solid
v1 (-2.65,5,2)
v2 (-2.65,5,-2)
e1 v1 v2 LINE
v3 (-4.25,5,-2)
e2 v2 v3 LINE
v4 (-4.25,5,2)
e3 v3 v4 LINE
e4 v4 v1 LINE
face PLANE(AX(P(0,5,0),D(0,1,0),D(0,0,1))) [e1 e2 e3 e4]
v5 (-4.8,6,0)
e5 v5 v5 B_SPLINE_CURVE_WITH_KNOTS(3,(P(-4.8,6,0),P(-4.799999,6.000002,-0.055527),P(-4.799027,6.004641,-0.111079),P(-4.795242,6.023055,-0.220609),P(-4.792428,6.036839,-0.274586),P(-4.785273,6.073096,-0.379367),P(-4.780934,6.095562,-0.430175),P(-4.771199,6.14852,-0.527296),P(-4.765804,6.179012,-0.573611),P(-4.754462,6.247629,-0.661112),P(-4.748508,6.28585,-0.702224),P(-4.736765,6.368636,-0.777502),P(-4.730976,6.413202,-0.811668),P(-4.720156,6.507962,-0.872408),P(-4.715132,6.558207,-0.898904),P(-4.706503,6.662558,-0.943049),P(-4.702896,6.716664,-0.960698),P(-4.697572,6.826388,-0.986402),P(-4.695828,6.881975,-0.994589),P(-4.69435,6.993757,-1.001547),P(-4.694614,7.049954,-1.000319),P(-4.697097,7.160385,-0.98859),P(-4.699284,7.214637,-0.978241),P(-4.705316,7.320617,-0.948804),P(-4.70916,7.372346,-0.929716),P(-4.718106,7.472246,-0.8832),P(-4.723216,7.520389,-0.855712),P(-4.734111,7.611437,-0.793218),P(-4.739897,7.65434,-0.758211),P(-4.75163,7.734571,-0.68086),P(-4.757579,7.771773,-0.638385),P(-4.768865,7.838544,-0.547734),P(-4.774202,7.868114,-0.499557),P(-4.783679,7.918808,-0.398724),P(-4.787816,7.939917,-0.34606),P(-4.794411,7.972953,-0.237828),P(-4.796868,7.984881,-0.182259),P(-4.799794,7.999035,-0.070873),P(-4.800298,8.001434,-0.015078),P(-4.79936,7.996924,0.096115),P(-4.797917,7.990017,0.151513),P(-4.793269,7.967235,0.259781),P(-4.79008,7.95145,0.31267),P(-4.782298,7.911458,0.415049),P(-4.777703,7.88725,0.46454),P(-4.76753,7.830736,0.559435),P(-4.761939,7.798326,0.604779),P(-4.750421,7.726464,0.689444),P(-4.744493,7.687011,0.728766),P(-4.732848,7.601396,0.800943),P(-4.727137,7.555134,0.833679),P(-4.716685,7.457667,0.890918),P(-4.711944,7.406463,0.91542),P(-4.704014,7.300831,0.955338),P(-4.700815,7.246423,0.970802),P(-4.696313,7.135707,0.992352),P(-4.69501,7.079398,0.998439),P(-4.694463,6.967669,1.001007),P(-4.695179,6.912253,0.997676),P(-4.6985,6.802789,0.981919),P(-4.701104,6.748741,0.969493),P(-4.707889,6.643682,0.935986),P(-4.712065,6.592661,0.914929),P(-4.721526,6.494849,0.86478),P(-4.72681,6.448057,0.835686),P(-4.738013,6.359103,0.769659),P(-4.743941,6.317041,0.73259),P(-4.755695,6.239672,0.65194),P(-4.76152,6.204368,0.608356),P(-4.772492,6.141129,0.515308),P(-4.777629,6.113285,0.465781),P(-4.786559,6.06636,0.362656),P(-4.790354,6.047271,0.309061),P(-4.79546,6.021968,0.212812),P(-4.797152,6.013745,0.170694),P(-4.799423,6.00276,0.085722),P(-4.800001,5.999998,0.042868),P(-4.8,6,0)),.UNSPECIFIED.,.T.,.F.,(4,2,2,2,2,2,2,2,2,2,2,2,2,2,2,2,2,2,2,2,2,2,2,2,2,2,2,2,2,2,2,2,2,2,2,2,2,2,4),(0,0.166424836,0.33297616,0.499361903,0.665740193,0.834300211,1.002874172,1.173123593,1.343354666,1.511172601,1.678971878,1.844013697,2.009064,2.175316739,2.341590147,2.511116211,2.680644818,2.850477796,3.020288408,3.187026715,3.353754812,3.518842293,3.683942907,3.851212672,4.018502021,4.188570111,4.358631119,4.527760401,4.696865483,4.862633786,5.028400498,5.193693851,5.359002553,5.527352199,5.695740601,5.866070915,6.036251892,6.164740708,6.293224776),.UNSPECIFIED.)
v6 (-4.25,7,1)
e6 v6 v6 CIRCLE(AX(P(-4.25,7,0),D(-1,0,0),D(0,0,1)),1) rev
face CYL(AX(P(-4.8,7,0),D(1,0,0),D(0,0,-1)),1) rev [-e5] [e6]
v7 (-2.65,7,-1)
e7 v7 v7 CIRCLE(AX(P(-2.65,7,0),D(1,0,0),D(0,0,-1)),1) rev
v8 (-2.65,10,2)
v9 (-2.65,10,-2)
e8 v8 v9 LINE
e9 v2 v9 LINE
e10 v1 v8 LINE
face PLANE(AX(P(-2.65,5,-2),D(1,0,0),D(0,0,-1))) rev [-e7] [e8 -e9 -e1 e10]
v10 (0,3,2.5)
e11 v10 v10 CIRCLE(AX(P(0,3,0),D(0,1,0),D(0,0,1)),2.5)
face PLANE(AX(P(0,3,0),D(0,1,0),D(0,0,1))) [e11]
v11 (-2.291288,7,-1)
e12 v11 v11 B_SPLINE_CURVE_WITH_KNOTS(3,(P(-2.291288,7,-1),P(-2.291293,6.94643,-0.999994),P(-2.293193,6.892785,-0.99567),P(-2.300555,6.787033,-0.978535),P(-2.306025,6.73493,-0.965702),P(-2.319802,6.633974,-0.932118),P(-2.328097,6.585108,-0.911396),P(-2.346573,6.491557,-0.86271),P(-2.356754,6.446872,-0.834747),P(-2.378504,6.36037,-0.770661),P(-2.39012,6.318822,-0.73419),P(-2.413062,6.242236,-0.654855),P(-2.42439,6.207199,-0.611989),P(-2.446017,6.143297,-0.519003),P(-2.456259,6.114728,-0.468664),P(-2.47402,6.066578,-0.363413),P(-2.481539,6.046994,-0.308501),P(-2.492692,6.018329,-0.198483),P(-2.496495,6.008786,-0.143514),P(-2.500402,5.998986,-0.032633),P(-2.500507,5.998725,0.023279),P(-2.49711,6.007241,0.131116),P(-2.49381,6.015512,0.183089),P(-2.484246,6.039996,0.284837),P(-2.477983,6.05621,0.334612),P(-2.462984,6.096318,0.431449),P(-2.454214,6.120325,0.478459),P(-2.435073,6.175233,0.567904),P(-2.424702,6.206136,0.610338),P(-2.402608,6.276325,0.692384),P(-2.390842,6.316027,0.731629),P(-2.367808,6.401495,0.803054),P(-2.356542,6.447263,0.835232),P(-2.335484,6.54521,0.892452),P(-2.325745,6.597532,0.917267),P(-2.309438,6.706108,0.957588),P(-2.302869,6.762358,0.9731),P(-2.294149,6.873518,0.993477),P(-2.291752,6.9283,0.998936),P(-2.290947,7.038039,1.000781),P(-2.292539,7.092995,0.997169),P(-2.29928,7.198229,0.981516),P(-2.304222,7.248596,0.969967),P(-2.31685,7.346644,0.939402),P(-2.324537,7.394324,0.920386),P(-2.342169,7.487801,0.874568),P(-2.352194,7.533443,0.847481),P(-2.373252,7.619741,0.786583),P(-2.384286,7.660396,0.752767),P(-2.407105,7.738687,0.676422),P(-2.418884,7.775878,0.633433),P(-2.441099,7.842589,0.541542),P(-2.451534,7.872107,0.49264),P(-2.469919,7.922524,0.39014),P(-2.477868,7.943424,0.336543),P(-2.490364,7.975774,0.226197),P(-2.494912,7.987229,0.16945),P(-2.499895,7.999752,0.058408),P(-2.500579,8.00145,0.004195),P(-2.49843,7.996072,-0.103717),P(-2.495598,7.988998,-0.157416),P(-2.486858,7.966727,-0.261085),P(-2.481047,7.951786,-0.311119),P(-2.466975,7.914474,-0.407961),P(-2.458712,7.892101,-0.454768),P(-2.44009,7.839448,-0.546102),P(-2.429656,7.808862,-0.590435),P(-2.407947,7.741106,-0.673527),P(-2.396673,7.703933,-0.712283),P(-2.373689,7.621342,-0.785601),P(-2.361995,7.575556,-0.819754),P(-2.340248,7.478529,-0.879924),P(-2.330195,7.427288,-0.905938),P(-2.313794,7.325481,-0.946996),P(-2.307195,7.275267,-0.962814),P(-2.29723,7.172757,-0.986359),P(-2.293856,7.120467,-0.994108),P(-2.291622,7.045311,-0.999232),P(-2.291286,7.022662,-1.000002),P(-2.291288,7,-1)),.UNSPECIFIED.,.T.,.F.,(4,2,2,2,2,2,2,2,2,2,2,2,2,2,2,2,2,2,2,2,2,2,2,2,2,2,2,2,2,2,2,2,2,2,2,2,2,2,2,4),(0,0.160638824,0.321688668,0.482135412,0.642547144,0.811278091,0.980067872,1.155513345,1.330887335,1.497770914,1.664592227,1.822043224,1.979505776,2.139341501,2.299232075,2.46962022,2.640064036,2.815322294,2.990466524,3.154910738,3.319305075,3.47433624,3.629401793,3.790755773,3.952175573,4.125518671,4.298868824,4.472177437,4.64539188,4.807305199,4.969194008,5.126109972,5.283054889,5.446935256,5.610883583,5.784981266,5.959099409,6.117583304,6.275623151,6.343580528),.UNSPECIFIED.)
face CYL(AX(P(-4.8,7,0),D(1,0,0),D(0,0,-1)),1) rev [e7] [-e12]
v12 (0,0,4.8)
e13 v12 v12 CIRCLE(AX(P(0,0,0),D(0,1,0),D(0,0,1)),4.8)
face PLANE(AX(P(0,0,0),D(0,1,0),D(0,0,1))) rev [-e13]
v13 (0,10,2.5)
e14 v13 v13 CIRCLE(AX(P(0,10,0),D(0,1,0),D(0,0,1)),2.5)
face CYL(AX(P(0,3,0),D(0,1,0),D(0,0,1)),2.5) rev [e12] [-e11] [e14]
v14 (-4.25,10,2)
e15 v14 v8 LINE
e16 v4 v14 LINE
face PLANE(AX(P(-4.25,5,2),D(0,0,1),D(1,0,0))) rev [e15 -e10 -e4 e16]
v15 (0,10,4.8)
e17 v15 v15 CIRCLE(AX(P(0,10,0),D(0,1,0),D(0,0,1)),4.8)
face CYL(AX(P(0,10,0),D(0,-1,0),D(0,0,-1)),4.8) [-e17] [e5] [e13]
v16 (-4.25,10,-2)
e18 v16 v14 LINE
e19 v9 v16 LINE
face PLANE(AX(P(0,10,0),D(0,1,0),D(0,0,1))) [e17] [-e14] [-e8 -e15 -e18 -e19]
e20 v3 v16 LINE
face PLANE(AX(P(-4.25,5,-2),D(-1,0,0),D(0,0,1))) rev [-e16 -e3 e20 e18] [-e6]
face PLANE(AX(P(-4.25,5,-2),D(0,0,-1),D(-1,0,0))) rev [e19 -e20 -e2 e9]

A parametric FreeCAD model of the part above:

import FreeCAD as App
import Part
import Sketcher
Q = App.Units.Quantity

doc = App.newDocument("Part")
body = doc.addObject("PartDesign::Body", "Body")

sketch1 = body.newObject("Sketcher::SketchObject", "Sketch")
sketch1.AttachmentSupport = (doc.getObject("XZ_Plane"), [""])
sketch1.MapMode = "FlatFace"
sketch1.addGeometry(Part.Circle(App.Vector(0, 0, 0), App.Vector(0, 0, 1), 4.8), False)
sketch1.addConstraint(Sketcher.Constraint("Coincident", 0, 3, -1, 1))
sketch1.addConstraint(Sketcher.Constraint("Diameter", 0, Q("9.6 mm")))
pad1 = body.newObject("PartDesign::Pad", "Pad")
pad1.Profile = sketch1
pad1.Length = 10
pad1.Reversed = True

sketch2 = body.newObject("Sketcher::SketchObject", "Sketch001")
sketch2.AttachmentSupport = (doc.getObject("XZ_Plane"), [""])
sketch2.MapMode = "FlatFace"
sketch2.AttachmentOffset = App.Placement(App.Vector(0, 0, -10), App.Rotation())
sketch2.addGeometry(Part.Circle(App.Vector(0, 0, 0), App.Vector(0, 0, 1), 2.5), False)
sketch2.addConstraint(Sketcher.Constraint("Coincident", 0, 3, -1, 1))
sketch2.addConstraint(Sketcher.Constraint("Diameter", 0, Q("5 mm")))
pocket1 = body.newObject("PartDesign::Pocket", "Pocket")
pocket1.Profile = sketch2
pocket1.Length = 7
pocket1.Reversed = True

sketch3 = body.newObject("Sketcher::SketchObject", "Sketch002")
sketch3.AttachmentSupport = (doc.getObject("YZ_Plane"), [""])
sketch3.MapMode = "FlatFace"
sketch3.addGeometry(Part.Circle(App.Vector(7, 0, 0), App.Vector(0, 0, 1), 1), False)
sketch3.addConstraint(Sketcher.Constraint("PointOnObject", 0, 3, -1))
sketch3.addConstraint(Sketcher.Constraint("Diameter", 0, Q("2 mm")))
sketch3.addConstraint(Sketcher.Constraint("DistanceX", -1, 1, 0, 3, Q("7 mm")))
pocket2 = body.newObject("PartDesign::Pocket", "Pocket001")
pocket2.Profile = sketch3
pocket2.Type = "ThroughAll"

sketch4 = body.newObject("Sketcher::SketchObject", "Sketch003")
sketch4.AttachmentSupport = (doc.getObject("XZ_Plane"), [""])
sketch4.MapMode = "FlatFace"
sketch4.AttachmentOffset = App.Placement(App.Vector(0, 0, -10), App.Rotation())
sketch4.addGeometry(Part.LineSegment(App.Vector(-4.2, -2, 0), App.Vector(-4.2, 2, 0)), False)
sketch4.addGeometry(Part.LineSegment(App.Vector(-4.2, 2, 0), App.Vector(-2.6, 2, 0)), False)
sketch4.addGeometry(Part.LineSegment(App.Vector(-2.6, 2, 0), App.Vector(-2.6, -2, 0)), False)
sketch4.addGeometry(Part.LineSegment(App.Vector(-2.6, -2, 0), App.Vector(-4.2, -2, 0)), False)
sketch4.addConstraint(Sketcher.Constraint("Coincident", 0, 2, 1, 1))
sketch4.addConstraint(Sketcher.Constraint("Coincident", 1, 2, 2, 1))
sketch4.addConstraint(Sketcher.Constraint("Coincident", 2, 2, 3, 1))
sketch4.addConstraint(Sketcher.Constraint("Coincident", 3, 2, 0, 1))
sketch4.addConstraint(Sketcher.Constraint("Vertical", 0))
sketch4.addConstraint(Sketcher.Constraint("Horizontal", 1))
sketch4.addConstraint(Sketcher.Constraint("Vertical", 2))
sketch4.addConstraint(Sketcher.Constraint("Horizontal", 3))
sketch4.addConstraint(Sketcher.Constraint("DistanceY", 0, 1, 0, 2, Q("4 mm")))
sketch4.addConstraint(Sketcher.Constraint("DistanceX", 1, 1, 1, 2, Q("1.6 mm")))
sketch4.addConstraint(Sketcher.Constraint("DistanceY", -1, 1, 0, 2, Q("2 mm")))
sketch4.addConstraint(Sketcher.Constraint("DistanceX", 0, 2, -1, 1, Q("4.25 mm")))
pocket3 = body.newObject("PartDesign::Pocket", "Pocket002")
pocket3.Profile = sketch4
pocket3.Length = 5
pocket3.Reversed = True

doc.recompute()
